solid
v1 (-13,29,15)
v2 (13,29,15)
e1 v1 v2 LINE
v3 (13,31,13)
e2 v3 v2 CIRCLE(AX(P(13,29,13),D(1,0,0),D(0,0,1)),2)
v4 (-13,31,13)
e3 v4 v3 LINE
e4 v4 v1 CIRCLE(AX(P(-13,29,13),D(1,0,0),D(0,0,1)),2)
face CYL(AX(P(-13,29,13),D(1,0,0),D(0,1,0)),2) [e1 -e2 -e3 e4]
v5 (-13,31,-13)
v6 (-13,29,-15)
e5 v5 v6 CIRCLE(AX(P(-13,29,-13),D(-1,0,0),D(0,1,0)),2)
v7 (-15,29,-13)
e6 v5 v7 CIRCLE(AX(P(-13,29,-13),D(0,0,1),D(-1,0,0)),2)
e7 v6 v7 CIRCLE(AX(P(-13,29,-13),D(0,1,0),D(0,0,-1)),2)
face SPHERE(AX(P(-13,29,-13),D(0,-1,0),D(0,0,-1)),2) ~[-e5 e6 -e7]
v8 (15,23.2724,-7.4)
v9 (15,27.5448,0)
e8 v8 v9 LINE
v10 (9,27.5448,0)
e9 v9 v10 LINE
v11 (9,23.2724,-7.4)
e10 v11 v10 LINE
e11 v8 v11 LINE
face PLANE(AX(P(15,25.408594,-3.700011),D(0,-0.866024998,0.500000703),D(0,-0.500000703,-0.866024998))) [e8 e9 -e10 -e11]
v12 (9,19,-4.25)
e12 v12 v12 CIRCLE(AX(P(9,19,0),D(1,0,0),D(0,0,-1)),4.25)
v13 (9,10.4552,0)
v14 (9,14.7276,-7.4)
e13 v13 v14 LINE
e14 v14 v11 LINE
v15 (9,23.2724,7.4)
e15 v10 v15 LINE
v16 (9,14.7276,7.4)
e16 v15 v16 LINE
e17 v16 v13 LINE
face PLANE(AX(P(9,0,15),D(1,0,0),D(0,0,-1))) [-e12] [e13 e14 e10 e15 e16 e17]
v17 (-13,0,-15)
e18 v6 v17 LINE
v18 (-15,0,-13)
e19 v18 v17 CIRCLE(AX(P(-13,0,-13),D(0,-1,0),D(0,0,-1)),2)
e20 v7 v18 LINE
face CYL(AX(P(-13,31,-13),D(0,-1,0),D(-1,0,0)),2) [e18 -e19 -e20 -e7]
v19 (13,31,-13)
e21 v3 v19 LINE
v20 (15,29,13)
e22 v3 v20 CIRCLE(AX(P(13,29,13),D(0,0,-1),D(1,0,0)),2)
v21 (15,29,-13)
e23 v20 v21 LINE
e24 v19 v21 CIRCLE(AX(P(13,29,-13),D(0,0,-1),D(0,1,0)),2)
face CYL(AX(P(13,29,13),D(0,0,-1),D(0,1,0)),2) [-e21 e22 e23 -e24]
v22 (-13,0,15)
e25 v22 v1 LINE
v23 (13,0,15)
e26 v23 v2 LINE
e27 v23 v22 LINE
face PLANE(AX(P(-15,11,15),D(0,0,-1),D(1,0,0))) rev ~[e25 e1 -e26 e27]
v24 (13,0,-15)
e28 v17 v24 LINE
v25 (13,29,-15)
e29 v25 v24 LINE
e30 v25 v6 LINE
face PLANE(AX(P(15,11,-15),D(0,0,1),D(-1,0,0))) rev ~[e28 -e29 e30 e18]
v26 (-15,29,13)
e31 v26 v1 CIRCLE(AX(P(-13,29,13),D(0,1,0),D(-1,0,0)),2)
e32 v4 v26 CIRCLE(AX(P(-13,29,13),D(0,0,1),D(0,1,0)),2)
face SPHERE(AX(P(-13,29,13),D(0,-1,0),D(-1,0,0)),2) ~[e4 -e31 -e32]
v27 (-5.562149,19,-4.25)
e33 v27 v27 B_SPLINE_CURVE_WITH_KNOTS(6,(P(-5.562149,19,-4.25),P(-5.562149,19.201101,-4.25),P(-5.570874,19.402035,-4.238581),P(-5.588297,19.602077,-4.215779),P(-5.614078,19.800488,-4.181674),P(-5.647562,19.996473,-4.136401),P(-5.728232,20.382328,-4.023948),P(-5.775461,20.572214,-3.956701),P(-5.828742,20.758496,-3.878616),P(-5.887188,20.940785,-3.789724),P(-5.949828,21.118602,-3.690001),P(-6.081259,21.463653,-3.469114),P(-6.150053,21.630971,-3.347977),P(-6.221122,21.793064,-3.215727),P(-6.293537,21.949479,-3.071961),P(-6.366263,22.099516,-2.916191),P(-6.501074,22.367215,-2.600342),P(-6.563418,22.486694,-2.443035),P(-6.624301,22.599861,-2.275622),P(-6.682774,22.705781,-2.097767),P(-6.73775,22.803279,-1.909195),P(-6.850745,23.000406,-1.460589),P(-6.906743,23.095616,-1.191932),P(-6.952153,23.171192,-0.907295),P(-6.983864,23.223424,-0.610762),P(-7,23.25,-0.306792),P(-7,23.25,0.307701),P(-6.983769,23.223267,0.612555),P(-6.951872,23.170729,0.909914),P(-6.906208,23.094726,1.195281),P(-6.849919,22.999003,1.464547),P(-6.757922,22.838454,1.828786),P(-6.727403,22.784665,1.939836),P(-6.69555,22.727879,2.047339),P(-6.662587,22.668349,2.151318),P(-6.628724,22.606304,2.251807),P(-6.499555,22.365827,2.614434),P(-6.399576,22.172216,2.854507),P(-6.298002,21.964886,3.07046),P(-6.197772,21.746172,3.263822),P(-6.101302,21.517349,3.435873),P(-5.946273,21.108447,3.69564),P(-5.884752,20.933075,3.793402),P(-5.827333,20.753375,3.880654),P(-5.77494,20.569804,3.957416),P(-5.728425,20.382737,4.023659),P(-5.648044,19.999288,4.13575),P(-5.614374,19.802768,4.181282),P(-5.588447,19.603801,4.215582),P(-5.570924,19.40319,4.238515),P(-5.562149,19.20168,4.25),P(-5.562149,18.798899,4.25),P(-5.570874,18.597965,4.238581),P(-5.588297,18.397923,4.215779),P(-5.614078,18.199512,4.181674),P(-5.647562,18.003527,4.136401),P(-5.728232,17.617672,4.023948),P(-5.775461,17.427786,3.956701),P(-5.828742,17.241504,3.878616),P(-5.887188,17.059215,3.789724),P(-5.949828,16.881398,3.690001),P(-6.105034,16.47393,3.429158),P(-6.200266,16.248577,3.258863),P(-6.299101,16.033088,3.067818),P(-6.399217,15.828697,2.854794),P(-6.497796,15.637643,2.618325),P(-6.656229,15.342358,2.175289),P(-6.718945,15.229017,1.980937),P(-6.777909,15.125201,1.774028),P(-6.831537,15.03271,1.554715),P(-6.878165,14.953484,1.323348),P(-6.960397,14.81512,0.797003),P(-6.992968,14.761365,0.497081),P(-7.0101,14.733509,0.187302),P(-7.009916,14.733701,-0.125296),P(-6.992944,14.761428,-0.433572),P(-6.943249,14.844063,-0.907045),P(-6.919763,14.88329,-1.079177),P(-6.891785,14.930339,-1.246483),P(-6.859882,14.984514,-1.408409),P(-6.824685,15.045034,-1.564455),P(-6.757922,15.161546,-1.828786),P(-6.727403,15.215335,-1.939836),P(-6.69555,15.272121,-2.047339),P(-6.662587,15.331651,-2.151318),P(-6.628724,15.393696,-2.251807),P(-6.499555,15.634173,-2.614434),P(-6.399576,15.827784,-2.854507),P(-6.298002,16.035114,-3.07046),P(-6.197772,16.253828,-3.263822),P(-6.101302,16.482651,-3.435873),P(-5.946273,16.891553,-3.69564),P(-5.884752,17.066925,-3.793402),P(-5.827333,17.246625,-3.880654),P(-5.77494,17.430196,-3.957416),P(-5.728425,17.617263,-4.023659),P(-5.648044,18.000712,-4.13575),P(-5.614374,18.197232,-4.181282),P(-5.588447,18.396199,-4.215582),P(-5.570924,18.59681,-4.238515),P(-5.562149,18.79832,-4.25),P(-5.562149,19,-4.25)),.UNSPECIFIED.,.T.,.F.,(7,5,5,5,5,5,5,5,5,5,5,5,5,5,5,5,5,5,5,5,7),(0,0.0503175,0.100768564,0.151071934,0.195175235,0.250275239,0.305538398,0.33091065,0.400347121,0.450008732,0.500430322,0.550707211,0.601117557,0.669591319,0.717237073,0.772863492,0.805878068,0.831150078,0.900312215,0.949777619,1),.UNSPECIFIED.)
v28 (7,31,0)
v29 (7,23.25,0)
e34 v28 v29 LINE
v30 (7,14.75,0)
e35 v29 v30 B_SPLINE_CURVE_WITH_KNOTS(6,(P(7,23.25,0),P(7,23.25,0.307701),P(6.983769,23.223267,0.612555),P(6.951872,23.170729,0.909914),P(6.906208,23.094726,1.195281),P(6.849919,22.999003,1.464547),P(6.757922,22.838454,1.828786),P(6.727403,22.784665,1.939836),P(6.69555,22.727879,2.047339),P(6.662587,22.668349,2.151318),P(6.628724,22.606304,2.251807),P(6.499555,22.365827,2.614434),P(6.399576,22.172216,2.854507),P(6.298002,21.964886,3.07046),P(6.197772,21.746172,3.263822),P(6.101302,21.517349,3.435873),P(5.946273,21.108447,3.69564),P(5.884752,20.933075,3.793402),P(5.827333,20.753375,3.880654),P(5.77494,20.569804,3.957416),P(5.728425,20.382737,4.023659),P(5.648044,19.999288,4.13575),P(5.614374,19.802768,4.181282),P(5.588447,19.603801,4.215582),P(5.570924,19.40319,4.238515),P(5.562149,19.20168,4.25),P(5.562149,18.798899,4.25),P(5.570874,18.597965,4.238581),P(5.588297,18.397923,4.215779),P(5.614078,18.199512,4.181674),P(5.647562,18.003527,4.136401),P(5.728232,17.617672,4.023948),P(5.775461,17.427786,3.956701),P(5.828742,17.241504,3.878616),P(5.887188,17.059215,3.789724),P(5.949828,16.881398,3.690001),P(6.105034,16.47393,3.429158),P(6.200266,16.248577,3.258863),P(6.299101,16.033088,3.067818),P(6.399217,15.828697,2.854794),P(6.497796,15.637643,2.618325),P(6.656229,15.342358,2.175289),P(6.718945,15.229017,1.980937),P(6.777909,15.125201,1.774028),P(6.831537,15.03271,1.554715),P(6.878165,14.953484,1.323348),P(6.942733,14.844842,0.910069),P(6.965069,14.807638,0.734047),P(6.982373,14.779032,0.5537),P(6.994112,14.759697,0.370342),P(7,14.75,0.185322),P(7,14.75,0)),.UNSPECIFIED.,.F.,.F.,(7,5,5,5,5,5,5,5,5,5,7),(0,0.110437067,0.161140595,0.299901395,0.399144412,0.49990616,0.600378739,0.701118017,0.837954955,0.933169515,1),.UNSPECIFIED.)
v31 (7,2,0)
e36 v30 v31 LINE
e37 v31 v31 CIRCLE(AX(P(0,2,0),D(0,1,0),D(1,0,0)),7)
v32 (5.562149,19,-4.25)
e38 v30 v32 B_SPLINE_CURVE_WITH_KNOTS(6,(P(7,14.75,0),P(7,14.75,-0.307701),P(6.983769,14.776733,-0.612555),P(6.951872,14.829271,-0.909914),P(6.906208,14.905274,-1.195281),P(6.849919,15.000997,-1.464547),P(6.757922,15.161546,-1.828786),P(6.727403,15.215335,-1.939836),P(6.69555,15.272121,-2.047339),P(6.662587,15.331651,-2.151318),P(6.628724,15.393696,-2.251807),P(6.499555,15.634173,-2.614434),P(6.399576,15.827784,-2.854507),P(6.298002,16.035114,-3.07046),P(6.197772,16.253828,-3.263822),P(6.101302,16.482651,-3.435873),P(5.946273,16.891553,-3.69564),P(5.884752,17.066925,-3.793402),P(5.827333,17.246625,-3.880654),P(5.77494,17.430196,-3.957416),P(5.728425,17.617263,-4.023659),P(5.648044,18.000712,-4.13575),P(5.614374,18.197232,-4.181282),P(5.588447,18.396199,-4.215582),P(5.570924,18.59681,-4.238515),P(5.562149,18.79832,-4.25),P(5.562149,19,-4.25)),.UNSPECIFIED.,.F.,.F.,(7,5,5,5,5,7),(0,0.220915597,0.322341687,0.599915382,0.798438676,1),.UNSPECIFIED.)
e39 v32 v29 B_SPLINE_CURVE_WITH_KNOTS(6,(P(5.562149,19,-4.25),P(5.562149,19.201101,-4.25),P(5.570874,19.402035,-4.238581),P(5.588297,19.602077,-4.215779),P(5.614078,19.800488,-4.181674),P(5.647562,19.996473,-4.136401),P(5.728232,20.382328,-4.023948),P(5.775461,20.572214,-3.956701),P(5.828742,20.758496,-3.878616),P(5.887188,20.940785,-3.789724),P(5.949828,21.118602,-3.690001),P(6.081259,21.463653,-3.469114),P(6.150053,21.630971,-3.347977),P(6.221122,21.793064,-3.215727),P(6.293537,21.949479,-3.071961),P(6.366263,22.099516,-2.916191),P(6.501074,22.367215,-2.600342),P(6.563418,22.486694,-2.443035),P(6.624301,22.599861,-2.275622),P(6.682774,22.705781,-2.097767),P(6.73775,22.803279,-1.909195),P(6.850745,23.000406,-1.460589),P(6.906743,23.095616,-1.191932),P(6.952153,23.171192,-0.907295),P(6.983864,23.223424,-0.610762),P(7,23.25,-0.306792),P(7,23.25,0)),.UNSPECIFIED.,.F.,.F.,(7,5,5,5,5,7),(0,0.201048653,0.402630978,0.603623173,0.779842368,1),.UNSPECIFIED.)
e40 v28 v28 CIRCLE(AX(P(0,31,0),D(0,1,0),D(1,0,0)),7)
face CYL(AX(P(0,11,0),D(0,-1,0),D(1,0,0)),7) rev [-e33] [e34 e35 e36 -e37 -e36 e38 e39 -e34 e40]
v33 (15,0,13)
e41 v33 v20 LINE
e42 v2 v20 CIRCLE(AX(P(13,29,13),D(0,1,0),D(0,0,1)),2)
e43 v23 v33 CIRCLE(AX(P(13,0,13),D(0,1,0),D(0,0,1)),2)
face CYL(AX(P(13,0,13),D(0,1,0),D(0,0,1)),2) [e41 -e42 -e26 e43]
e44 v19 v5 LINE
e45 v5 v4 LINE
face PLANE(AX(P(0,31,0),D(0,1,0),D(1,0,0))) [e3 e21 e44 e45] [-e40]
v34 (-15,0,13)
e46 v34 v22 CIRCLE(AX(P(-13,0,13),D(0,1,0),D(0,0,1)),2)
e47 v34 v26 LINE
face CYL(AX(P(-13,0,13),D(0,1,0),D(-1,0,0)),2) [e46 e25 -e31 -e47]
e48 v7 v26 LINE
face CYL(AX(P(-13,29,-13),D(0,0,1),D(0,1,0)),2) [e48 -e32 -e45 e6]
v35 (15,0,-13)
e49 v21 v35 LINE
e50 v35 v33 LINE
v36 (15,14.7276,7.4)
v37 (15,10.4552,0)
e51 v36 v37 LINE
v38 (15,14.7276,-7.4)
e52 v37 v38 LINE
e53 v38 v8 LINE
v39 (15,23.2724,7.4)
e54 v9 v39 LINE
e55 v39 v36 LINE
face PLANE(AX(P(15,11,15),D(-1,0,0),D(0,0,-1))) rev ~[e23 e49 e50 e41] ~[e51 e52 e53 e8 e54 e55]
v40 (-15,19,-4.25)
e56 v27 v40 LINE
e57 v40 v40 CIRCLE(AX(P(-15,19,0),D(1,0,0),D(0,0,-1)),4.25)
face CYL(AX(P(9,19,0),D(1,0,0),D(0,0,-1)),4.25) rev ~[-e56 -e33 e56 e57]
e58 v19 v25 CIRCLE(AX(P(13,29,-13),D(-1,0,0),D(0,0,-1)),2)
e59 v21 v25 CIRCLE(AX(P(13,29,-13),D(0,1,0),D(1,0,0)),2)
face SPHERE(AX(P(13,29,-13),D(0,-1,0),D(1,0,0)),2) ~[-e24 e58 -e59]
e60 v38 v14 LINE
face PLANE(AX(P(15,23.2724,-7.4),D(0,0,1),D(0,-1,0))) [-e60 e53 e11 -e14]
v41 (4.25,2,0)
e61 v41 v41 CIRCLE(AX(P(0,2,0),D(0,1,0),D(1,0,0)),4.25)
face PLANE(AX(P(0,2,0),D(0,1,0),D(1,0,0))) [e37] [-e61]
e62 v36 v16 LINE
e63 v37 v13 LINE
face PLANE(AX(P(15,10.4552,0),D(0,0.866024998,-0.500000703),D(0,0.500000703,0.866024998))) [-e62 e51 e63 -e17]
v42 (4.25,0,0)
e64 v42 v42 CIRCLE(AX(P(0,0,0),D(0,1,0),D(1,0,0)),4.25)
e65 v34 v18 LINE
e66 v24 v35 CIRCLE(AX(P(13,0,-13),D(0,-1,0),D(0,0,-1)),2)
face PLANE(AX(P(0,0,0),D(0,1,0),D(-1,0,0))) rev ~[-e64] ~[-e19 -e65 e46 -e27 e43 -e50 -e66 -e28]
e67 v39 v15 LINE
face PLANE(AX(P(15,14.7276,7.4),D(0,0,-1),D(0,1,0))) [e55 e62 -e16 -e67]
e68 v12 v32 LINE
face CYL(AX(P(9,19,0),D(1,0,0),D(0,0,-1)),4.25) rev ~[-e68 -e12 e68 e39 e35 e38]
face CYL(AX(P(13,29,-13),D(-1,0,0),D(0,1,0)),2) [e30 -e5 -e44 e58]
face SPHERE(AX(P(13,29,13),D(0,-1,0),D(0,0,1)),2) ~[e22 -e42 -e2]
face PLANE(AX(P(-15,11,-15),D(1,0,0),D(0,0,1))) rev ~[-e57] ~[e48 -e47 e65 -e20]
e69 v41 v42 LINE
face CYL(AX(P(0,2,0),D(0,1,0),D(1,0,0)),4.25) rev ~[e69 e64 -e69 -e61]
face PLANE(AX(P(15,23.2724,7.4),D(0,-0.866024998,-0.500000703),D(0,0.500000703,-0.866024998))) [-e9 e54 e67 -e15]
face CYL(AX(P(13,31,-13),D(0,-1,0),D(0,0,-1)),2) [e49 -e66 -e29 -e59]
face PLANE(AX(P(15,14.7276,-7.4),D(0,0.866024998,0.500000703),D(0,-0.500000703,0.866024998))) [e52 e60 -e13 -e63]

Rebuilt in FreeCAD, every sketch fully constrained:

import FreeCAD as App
import Part
import Sketcher
Q = App.Units.Quantity


def edges_at(feature, points):
    """Names of the edges that pass closest to the given points."""
    edges = feature.Shape.Edges
    near = lambda p: min(range(len(edges)), key=lambda i: edges[i].distToShape(Part.Vertex(*p))[0])
    return sorted({f"Edge{near(p) + 1}" for p in points})

doc = App.newDocument("Part")
body = doc.addObject("PartDesign::Body", "Body")

# Sketch on XZ plane
sketch1 = body.newObject("Sketcher::SketchObject", "Sketch")
sketch1.AttachmentSupport = (doc.getObject("XZ_Plane"), [""])
sketch1.MapMode = "FlatFace"
sketch1.addGeometry([
    Part.LineSegment(App.Vector(-15, 15, 0), App.Vector(15, 15, 0)),
    Part.LineSegment(App.Vector(15, 15, 0), App.Vector(15, -15, 0)),
    Part.LineSegment(App.Vector(15, -15, 0), App.Vector(-15, -15, 0)),
    Part.LineSegment(App.Vector(-15, -15, 0), App.Vector(-15, 15, 0)),
], False)
sketch1.addConstraint([
    Sketcher.Constraint("Coincident", 0, 2, 1, 1),
    Sketcher.Constraint("Coincident", 1, 2, 2, 1),
    Sketcher.Constraint("Coincident", 2, 2, 3, 1),
    Sketcher.Constraint("Coincident", 3, 2, 0, 1),
    Sketcher.Constraint("Horizontal", 0),
    Sketcher.Constraint("Vertical", 1),
    Sketcher.Constraint("Horizontal", 2),
    Sketcher.Constraint("Vertical", 3),
    Sketcher.Constraint("Symmetric", 0, 2, 2, 2, -1, 1),
    Sketcher.Constraint("Equal", 2, 1),
    Sketcher.Constraint("DistanceX", 0, 1, 0, 2, Q("30 mm")),
])
pad1 = body.newObject("PartDesign::Pad", "Pad")
pad1.Profile = sketch1
pad1.Length = 11
pad1.Reversed = True

# Sketch on XZ plane
sketch2 = body.newObject("Sketcher::SketchObject", "Sketch001")
sketch2.AttachmentSupport = (doc.getObject("XZ_Plane"), [""])
sketch2.MapMode = "FlatFace"
sketch2.AttachmentOffset = App.Placement(App.Vector(0, 0, -11), App.Rotation())
sketch2.addGeometry(Part.Circle(App.Vector(0, 0, 0), App.Vector(0, 0, 1), 7), False)
sketch2.addConstraint([
    Sketcher.Constraint("Coincident", 0, 3, -1, 1),
    Sketcher.Constraint("Diameter", 0, Q("14 mm")),
])
pocket1 = body.newObject("PartDesign::Pocket", "Pocket")
pocket1.Profile = sketch2
pocket1.Length = 9
pocket1.Reversed = True

# Sketch on XZ plane
sketch3 = body.newObject("Sketcher::SketchObject", "Sketch002")
sketch3.AttachmentSupport = (doc.getObject("XZ_Plane"), [""])
sketch3.MapMode = "FlatFace"
sketch3.AttachmentOffset = App.Placement(App.Vector(0, 0, -11), App.Rotation())
sketch3.addGeometry([
    Part.LineSegment(App.Vector(-15, -15, 0), App.Vector(-15, 15, 0)),  # 0
    Part.LineSegment(App.Vector(-15, 15, 0), App.Vector(15, 15, 0)),  # 1
    Part.LineSegment(App.Vector(15, 15, 0), App.Vector(15, -15, 0)),  # 2
    Part.LineSegment(App.Vector(15, -15, 0), App.Vector(-15, -15, 0)),  # 3
    Part.Circle(App.Vector(0, 0, 0), App.Vector(0, 0, 1), 7),  # 4
], False)
sketch3.addConstraint([
    Sketcher.Constraint("Coincident", 0, 2, 1, 1),
    Sketcher.Constraint("Coincident", 1, 2, 2, 1),
    Sketcher.Constraint("Coincident", 2, 2, 3, 1),
    Sketcher.Constraint("Coincident", 3, 2, 0, 1),
    Sketcher.Constraint("Vertical", 0),
    Sketcher.Constraint("Horizontal", 1),
    Sketcher.Constraint("Vertical", 2),
    Sketcher.Constraint("Horizontal", 3),
    Sketcher.Constraint("Coincident", 4, 3, -1, 1),
    Sketcher.Constraint("Symmetric", 0, 2, 2, 2, -1, 1),
    Sketcher.Constraint("Equal", 3, 0),
    Sketcher.Constraint("Diameter", 4, Q("14 mm")),
    Sketcher.Constraint("DistanceX", 1, 1, 1, 2, Q("30 mm")),
])
pad2 = body.newObject("PartDesign::Pad", "Pad001")
pad2.Profile = sketch3
pad2.Length = 20
pad2.Reversed = True

# Sketch on YZ plane
sketch4 = body.newObject("Sketcher::SketchObject", "Sketch003")
sketch4.AttachmentSupport = (doc.getObject("YZ_Plane"), [""])
sketch4.MapMode = "FlatFace"
sketch4.AttachmentOffset = App.Placement(App.Vector(0, 0, 15), App.Rotation())
sketch4.addGeometry([
    Part.LineSegment(App.Vector(23, -7, 0), App.Vector(28, 0, 0)),  # 0
    Part.LineSegment(App.Vector(28, 0, 0), App.Vector(23, 7, 0)),  # 1
    Part.LineSegment(App.Vector(23, 7, 0), App.Vector(15, 7, 0)),  # 2
    Part.LineSegment(App.Vector(15, 7, 0), App.Vector(10, 0, 0)),  # 3
    Part.LineSegment(App.Vector(10, 0, 0), App.Vector(15, -7, 0)),  # 4
    Part.LineSegment(App.Vector(15, -7, 0), App.Vector(23, -7, 0)),  # 5
], False)
sketch4.addConstraint([
    Sketcher.Constraint("Coincident", 0, 2, 1, 1),
    Sketcher.Constraint("Coincident", 1, 2, 2, 1),
    Sketcher.Constraint("Coincident", 2, 2, 3, 1),
    Sketcher.Constraint("Coincident", 3, 2, 4, 1),
    Sketcher.Constraint("Coincident", 4, 2, 5, 1),
    Sketcher.Constraint("Coincident", 5, 2, 0, 1),
    Sketcher.Constraint("Horizontal", 2),
    Sketcher.Constraint("Horizontal", 5),
    Sketcher.Constraint("Symmetric", 2, 2, 4, 2, -1),
    Sketcher.Constraint("PointOnObject", 0, 2, -1),
    Sketcher.Constraint("PointOnObject", 3, 2, -1),
    Sketcher.Constraint("Parallel", 0, 3),
    Sketcher.Constraint("Parallel", 1, 4),
    Sketcher.Constraint("DistanceY", 4, 2, 2, 2, Q("14.8 mm")),
    Sketcher.Constraint("Angle", 0, Q("60 deg")),
    Sketcher.Constraint("DistanceX", 2, 2, 2, 1, Q("8.5448 mm")),
    Sketcher.Constraint("DistanceX", -1, 1, 0, 2, Q("27.5448 mm")),
])
pocket2 = body.newObject("PartDesign::Pocket", "Pocket001")
pocket2.Profile = sketch4
pocket2.Length = 6

# Sketch on YZ plane
sketch5 = body.newObject("Sketcher::SketchObject", "Sketch004")
sketch5.AttachmentSupport = (doc.getObject("YZ_Plane"), [""])
sketch5.MapMode = "FlatFace"
sketch5.AttachmentOffset = App.Placement(App.Vector(0, 0, 9), App.Rotation())
sketch5.addGeometry(Part.Circle(App.Vector(19, 0, 0), App.Vector(0, 0, 1), 4.2), False)
sketch5.addConstraint([
    Sketcher.Constraint("PointOnObject", 0, 3, -1),
    Sketcher.Constraint("Diameter", 0, Q("8.5 mm")),
    Sketcher.Constraint("DistanceX", -1, 1, 0, 3, Q("19 mm")),
])
pocket3 = body.newObject("PartDesign::Pocket", "Pocket002")
pocket3.Profile = sketch5
pocket3.Type = "ThroughAll"

# Sketch on XZ plane
sketch6 = body.newObject("Sketcher::SketchObject", "Sketch005")
sketch6.AttachmentSupport = (doc.getObject("XZ_Plane"), [""])
sketch6.MapMode = "FlatFace"
sketch6.AttachmentOffset = App.Placement(App.Vector(0, 0, -2), App.Rotation())
sketch6.addGeometry(Part.Circle(App.Vector(0, 0, 0), App.Vector(0, 0, 1), 4.2), False)
sketch6.addConstraint([
    Sketcher.Constraint("Coincident", 0, 3, -1, 1),
    Sketcher.Constraint("Diameter", 0, Q("8.5 mm")),
])
pocket4 = body.newObject("PartDesign::Pocket", "Pocket003")
pocket4.Profile = sketch6
pocket4.Type = "ThroughAll"
pocket4.Reversed = True
doc.recompute()

fillet = body.newObject("PartDesign::Fillet", "Fillet")
fillet.Base = (pocket4, edges_at(pocket4, [
    (15, 15.5, -15),
    (-15, 15.5, -15),
    (-15, 15.5, 15),
    (15, 15.5, 15),
]))
fillet.Radius = 2
doc.recompute()

fillet2 = body.newObject("PartDesign::Fillet", "Fillet001")
fillet2.Base = (fillet, edges_at(fillet, [
    (14.414, 31, 14.414),
    (15, 31, 0),
    (14.414, 31, -14.414),
    (0, 31, -15),
    (-14.414, 31, -14.414),
    (-15, 31, 0),
    (-14.414, 31, 14.414),
    (0, 31, 15),
]))
fillet2.Radius = 2

doc.recompute()
